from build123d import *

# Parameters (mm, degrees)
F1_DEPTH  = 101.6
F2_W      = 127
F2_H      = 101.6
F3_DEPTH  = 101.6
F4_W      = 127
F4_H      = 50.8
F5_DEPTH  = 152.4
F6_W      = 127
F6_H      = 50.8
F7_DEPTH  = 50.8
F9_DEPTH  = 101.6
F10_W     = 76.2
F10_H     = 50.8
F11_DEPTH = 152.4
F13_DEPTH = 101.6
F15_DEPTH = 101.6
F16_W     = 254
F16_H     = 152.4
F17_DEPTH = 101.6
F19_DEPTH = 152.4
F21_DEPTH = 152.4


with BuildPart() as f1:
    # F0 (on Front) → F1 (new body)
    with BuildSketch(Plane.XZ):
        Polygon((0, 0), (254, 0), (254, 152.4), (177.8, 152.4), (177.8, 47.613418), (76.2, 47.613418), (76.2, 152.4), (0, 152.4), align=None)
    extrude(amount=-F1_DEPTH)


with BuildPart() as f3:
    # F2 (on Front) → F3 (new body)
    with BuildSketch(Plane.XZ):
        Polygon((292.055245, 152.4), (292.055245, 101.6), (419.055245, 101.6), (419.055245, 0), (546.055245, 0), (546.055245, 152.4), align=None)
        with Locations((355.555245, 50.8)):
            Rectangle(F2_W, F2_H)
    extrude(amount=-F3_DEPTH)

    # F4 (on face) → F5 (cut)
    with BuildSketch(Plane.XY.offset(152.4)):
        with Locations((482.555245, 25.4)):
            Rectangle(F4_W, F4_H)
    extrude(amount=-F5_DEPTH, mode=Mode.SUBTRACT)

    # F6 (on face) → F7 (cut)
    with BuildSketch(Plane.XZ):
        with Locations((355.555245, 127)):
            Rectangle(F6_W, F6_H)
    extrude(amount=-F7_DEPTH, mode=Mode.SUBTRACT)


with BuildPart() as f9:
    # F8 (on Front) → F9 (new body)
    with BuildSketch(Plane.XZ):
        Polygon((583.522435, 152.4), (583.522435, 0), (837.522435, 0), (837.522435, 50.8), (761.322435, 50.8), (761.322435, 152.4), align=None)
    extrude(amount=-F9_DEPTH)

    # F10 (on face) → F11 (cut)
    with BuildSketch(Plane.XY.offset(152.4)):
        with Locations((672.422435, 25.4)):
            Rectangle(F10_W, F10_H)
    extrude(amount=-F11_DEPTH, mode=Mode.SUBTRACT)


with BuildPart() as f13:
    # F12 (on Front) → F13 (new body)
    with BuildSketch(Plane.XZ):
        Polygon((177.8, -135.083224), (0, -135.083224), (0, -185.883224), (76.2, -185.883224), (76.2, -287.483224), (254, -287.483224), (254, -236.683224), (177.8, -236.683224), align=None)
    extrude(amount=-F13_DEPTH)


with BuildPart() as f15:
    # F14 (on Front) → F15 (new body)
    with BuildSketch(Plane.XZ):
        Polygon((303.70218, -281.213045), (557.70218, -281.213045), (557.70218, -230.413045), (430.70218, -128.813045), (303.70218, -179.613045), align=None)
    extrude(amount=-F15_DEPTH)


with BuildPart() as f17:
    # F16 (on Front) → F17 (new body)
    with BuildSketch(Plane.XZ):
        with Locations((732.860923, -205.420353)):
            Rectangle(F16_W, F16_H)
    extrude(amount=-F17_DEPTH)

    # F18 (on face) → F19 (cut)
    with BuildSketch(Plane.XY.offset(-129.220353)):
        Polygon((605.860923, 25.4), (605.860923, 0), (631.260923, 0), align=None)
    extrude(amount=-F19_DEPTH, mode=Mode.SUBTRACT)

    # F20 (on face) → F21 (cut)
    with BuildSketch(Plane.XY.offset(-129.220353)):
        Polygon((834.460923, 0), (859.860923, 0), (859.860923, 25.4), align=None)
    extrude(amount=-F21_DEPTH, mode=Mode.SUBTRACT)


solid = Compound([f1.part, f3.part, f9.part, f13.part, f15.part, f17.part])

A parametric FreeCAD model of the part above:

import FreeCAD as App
import Part
import Sketcher
Q = App.Units.Quantity

doc = App.newDocument("Part")
body = doc.addObject("PartDesign::Body", "Body")

# Sketch on XZ plane
sketch1 = body.newObject("Sketcher::SketchObject", "Sketch")
sketch1.AttachmentSupport = (doc.getObject("XZ_Plane"), [""])
sketch1.MapMode = "FlatFace"
sketch1.addGeometry([
    Part.LineSegment(App.Vector(0, 0, 0), App.Vector(254, 0, 0)),  # 0
    Part.LineSegment(App.Vector(254, 0, 0), App.Vector(254, 152.4, 0)),  # 1
    Part.LineSegment(App.Vector(254, 152.4, 0), App.Vector(177.8, 152.4, 0)),  # 2
    Part.LineSegment(App.Vector(177.8, 152.4, 0), App.Vector(177.8, 47.613418, 0)),  # 3
    Part.LineSegment(App.Vector(177.8, 47.613418, 0), App.Vector(76.2, 47.613418, 0)),  # 4
    Part.LineSegment(App.Vector(76.2, 47.613418, 0), App.Vector(76.2, 152.4, 0)),  # 5
    Part.LineSegment(App.Vector(76.2, 152.4, 0), App.Vector(0, 152.4, 0)),  # 6
    Part.LineSegment(App.Vector(0, 152.4, 0), App.Vector(0, 0, 0)),  # 7
], False)
sketch1.addConstraint([
    Sketcher.Constraint("Coincident", 0, 2, 1, 1),
    Sketcher.Constraint("Coincident", 1, 2, 2, 1),
    Sketcher.Constraint("Coincident", 2, 2, 3, 1),
    Sketcher.Constraint("Coincident", 3, 2, 4, 1),
    Sketcher.Constraint("Coincident", 4, 2, 5, 1),
    Sketcher.Constraint("Coincident", 5, 2, 6, 1),
    Sketcher.Constraint("Coincident", 6, 2, 7, 1),
    Sketcher.Constraint("Coincident", 7, 2, 0, 1),
    Sketcher.Constraint("Horizontal", 0),
    Sketcher.Constraint("Vertical", 1),
    Sketcher.Constraint("Horizontal", 2),
    Sketcher.Constraint("Vertical", 3),
    Sketcher.Constraint("Horizontal", 4),
    Sketcher.Constraint("Vertical", 5),
    Sketcher.Constraint("Horizontal", 6),
    Sketcher.Constraint("Vertical", 7),
    Sketcher.Constraint("Coincident", 7, 2, -1, 1),
    Sketcher.Constraint("Horizontal", 2, 2, 5, 2),
    Sketcher.Constraint("Equal", 2, 6),
    Sketcher.Constraint("DistanceX", 0, 1, 0, 2, Q("10 in")),
    Sketcher.Constraint("DistanceX", 2, 2, 2, 1, Q("3 in")),
    Sketcher.Constraint("DistanceY", 1, 1, 1, 2, Q("6 in")),
    Sketcher.Constraint("DistanceY", 3, 2, 3, 1, Q("104.786582 mm")),
])
pad1 = body.newObject("PartDesign::Pad", "Pad")
pad1.Profile = sketch1
pad1.Length = Q("4 in")
pad1.Reversed = True
body2 = doc.addObject("PartDesign::Body", "Body001")

# Sketch on XZ plane
sketch2 = body2.newObject("Sketcher::SketchObject", "Sketch001")
sketch2.AttachmentSupport = (doc.getObject("XZ_Plane001"), [""])
sketch2.MapMode = "FlatFace"
sketch2.addGeometry([
    Part.LineSegment(App.Vector(292.055245, 152.4, 0), App.Vector(292.055245, 0, 0)),
    Part.LineSegment(App.Vector(292.055245, 0, 0), App.Vector(546.055245, 0, 0)),
    Part.LineSegment(App.Vector(546.055245, 0, 0), App.Vector(546.055245, 152.4, 0)),
    Part.LineSegment(App.Vector(546.055245, 152.4, 0), App.Vector(292.055245, 152.4, 0)),
], False)
sketch2.addConstraint([
    Sketcher.Constraint("Coincident", 0, 2, 1, 1),
    Sketcher.Constraint("Coincident", 1, 2, 2, 1),
    Sketcher.Constraint("Coincident", 2, 2, 3, 1),
    Sketcher.Constraint("Coincident", 3, 2, 0, 1),
    Sketcher.Constraint("Vertical", 0),
    Sketcher.Constraint("Horizontal", 1),
    Sketcher.Constraint("Vertical", 2),
    Sketcher.Constraint("Horizontal", 3),
    Sketcher.Constraint("PointOnObject", 0, 2, -1),
    Sketcher.Constraint("DistanceX", 1, 1, 1, 2, Q("10 in")),
    Sketcher.Constraint("DistanceY", 0, 2, 0, 1, Q("6 in")),
    Sketcher.Constraint("DistanceX", -1, 1, 0, 2, Q("292.055245 mm")),
])
pad2 = body2.newObject("PartDesign::Pad", "Pad001")
pad2.Profile = sketch2
pad2.Length = Q("4 in")
pad2.Reversed = True

# Sketch on XY plane
sketch3 = body2.newObject("Sketcher::SketchObject", "Sketch002")
sketch3.AttachmentSupport = (doc.getObject("XY_Plane001"), [""])
sketch3.MapMode = "FlatFace"
sketch3.AttachmentOffset = App.Placement(App.Vector(0, 0, 6 * 25.4), App.Rotation())
sketch3.addGeometry([
    Part.LineSegment(App.Vector(419.055245, 50.8, 0), App.Vector(419.055245, 0, 0)),
    Part.LineSegment(App.Vector(419.055245, 0, 0), App.Vector(546.055245, 0, 0)),
    Part.LineSegment(App.Vector(546.055245, 0, 0), App.Vector(546.055245, 50.8, 0)),
    Part.LineSegment(App.Vector(546.055245, 50.8, 0), App.Vector(419.055245, 50.8, 0)),
], False)
sketch3.addConstraint([
    Sketcher.Constraint("Coincident", 0, 2, 1, 1),
    Sketcher.Constraint("Coincident", 1, 2, 2, 1),
    Sketcher.Constraint("Coincident", 2, 2, 3, 1),
    Sketcher.Constraint("Coincident", 3, 2, 0, 1),
    Sketcher.Constraint("Vertical", 0),
    Sketcher.Constraint("Horizontal", 1),
    Sketcher.Constraint("Vertical", 2),
    Sketcher.Constraint("Horizontal", 3),
    Sketcher.Constraint("PointOnObject", 0, 2, -1),
    Sketcher.Constraint("DistanceX", 1, 1, 1, 2, Q("5 in")),
    Sketcher.Constraint("DistanceY", 0, 2, 0, 1, Q("2 in")),
    Sketcher.Constraint("DistanceX", -1, 1, 0, 2, Q("419.055245 mm")),
])
pocket1 = body2.newObject("PartDesign::Pocket", "Pocket")
pocket1.Profile = sketch3
pocket1.Length = Q("6 in")

# Sketch on XZ plane
sketch4 = body2.newObject("Sketcher::SketchObject", "Sketch003")
sketch4.AttachmentSupport = (doc.getObject("XZ_Plane001"), [""])
sketch4.MapMode = "FlatFace"
sketch4.addGeometry([
    Part.LineSegment(App.Vector(292.055245, 152.4, 0), App.Vector(292.055245, 101.6, 0)),
    Part.LineSegment(App.Vector(292.055245, 101.6, 0), App.Vector(419.055245, 101.6, 0)),
    Part.LineSegment(App.Vector(419.055245, 101.6, 0), App.Vector(419.055245, 152.4, 0)),
    Part.LineSegment(App.Vector(419.055245, 152.4, 0), App.Vector(292.055245, 152.4, 0)),
], False)
sketch4.addConstraint([
    Sketcher.Constraint("Coincident", 0, 2, 1, 1),
    Sketcher.Constraint("Coincident", 1, 2, 2, 1),
    Sketcher.Constraint("Coincident", 2, 2, 3, 1),
    Sketcher.Constraint("Coincident", 3, 2, 0, 1),
    Sketcher.Constraint("Vertical", 0),
    Sketcher.Constraint("Horizontal", 1),
    Sketcher.Constraint("Vertical", 2),
    Sketcher.Constraint("Horizontal", 3),
    Sketcher.Constraint("DistanceX", 1, 1, 1, 2, Q("5 in")),
    Sketcher.Constraint("DistanceY", 0, 2, 0, 1, Q("2 in")),
    Sketcher.Constraint("DistanceY", -1, 1, 0, 2, Q("4 in")),
    Sketcher.Constraint("DistanceX", -1, 1, 0, 2, Q("292.055245 mm")),
])
pocket2 = body2.newObject("PartDesign::Pocket", "Pocket001")
pocket2.Profile = sketch4
pocket2.Length = Q("2 in")
body3 = doc.addObject("PartDesign::Body", "Body002")

# Sketch on XZ plane
sketch5 = body3.newObject("Sketcher::SketchObject", "Sketch004")
sketch5.AttachmentSupport = (doc.getObject("XZ_Plane002"), [""])
sketch5.MapMode = "FlatFace"
sketch5.addGeometry([
    Part.LineSegment(App.Vector(583.522435, 152.4, 0), App.Vector(583.522435, 0, 0)),  # 0
    Part.LineSegment(App.Vector(583.522435, 0, 0), App.Vector(837.522435, 0, 0)),  # 1
    Part.LineSegment(App.Vector(837.522435, 0, 0), App.Vector(837.522435, 50.8, 0)),  # 2
    Part.LineSegment(App.Vector(837.522435, 50.8, 0), App.Vector(761.322435, 50.8, 0)),  # 3
    Part.LineSegment(App.Vector(761.322435, 50.8, 0), App.Vector(761.322435, 152.4, 0)),  # 4
    Part.LineSegment(App.Vector(761.322435, 152.4, 0), App.Vector(583.522435, 152.4, 0)),  # 5
], False)
sketch5.addConstraint([
    Sketcher.Constraint("Coincident", 0, 2, 1, 1),
    Sketcher.Constraint("Coincident", 1, 2, 2, 1),
    Sketcher.Constraint("Coincident", 2, 2, 3, 1),
    Sketcher.Constraint("Coincident", 3, 2, 4, 1),
    Sketcher.Constraint("Coincident", 4, 2, 5, 1),
    Sketcher.Constraint("Coincident", 5, 2, 0, 1),
    Sketcher.Constraint("Vertical", 0),
    Sketcher.Constraint("Horizontal", 1),
    Sketcher.Constraint("Vertical", 2),
    Sketcher.Constraint("Horizontal", 3),
    Sketcher.Constraint("Vertical", 4),
    Sketcher.Constraint("Horizontal", 5),
    Sketcher.Constraint("PointOnObject", 0, 2, -1),
    Sketcher.Constraint("DistanceX", 1, 1, 1, 2, Q("10 in")),
    Sketcher.Constraint("DistanceX", 3, 2, 3, 1, Q("3 in")),
    Sketcher.Constraint("DistanceY", 0, 2, 0, 1, Q("6 in")),
    Sketcher.Constraint("DistanceY", 2, 1, 2, 2, Q("2 in")),
    Sketcher.Constraint("DistanceX", -1, 1, 0, 2, Q("583.522435 mm")),
])
pad3 = body3.newObject("PartDesign::Pad", "Pad002")
pad3.Profile = sketch5
pad3.Length = Q("4 in")
pad3.Reversed = True

# Sketch on XY plane
sketch6 = body3.newObject("Sketcher::SketchObject", "Sketch005")
sketch6.AttachmentSupport = (doc.getObject("XY_Plane002"), [""])
sketch6.MapMode = "FlatFace"
sketch6.AttachmentOffset = App.Placement(App.Vector(0, 0, 6 * 25.4), App.Rotation())
sketch6.addGeometry([
    Part.LineSegment(App.Vector(634.322435, 50.8, 0), App.Vector(634.322435, 0, 0)),
    Part.LineSegment(App.Vector(634.322435, 0, 0), App.Vector(710.522435, 0, 0)),
    Part.LineSegment(App.Vector(710.522435, 0, 0), App.Vector(710.522435, 50.8, 0)),
    Part.LineSegment(App.Vector(710.522435, 50.8, 0), App.Vector(634.322435, 50.8, 0)),
], False)
sketch6.addConstraint([
    Sketcher.Constraint("Coincident", 0, 2, 1, 1),
    Sketcher.Constraint("Coincident", 1, 2, 2, 1),
    Sketcher.Constraint("Coincident", 2, 2, 3, 1),
    Sketcher.Constraint("Coincident", 3, 2, 0, 1),
    Sketcher.Constraint("Vertical", 0),
    Sketcher.Constraint("Horizontal", 1),
    Sketcher.Constraint("Vertical", 2),
    Sketcher.Constraint("Horizontal", 3),
    Sketcher.Constraint("PointOnObject", 0, 2, -1),
    Sketcher.Constraint("DistanceX", 1, 1, 1, 2, Q("3 in")),
    Sketcher.Constraint("DistanceY", 0, 2, 0, 1, Q("2 in")),
    Sketcher.Constraint("DistanceX", -1, 1, 0, 2, Q("634.322435 mm")),
])
pocket3 = body3.newObject("PartDesign::Pocket", "Pocket002")
pocket3.Profile = sketch6
pocket3.Length = Q("6 in")
body4 = doc.addObject("PartDesign::Body", "Body003")

# Sketch on XZ plane
sketch7 = body4.newObject("Sketcher::SketchObject", "Sketch006")
sketch7.AttachmentSupport = (doc.getObject("XZ_Plane003"), [""])
sketch7.MapMode = "FlatFace"
sketch7.addGeometry([
    Part.LineSegment(App.Vector(177.8, -135.083224, 0), App.Vector(0, -135.083224, 0)),  # 0
    Part.LineSegment(App.Vector(0, -135.083224, 0), App.Vector(0, -185.883224, 0)),  # 1
    Part.LineSegment(App.Vector(0, -185.883224, 0), App.Vector(76.2, -185.883224, 0)),  # 2
    Part.LineSegment(App.Vector(76.2, -185.883224, 0), App.Vector(76.2, -287.483224, 0)),  # 3
    Part.LineSegment(App.Vector(76.2, -287.483224, 0), App.Vector(254, -287.483224, 0)),  # 4
    Part.LineSegment(App.Vector(254, -287.483224, 0), App.Vector(254, -236.683224, 0)),  # 5
    Part.LineSegment(App.Vector(254, -236.683224, 0), App.Vector(177.8, -236.683224, 0)),  # 6
    Part.LineSegment(App.Vector(177.8, -236.683224, 0), App.Vector(177.8, -135.083224, 0)),  # 7
], False)
sketch7.addConstraint([
    Sketcher.Constraint("Coincident", 0, 2, 1, 1),
    Sketcher.Constraint("Coincident", 1, 2, 2, 1),
    Sketcher.Constraint("Coincident", 2, 2, 3, 1),
    Sketcher.Constraint("Coincident", 3, 2, 4, 1),
    Sketcher.Constraint("Coincident", 4, 2, 5, 1),
    Sketcher.Constraint("Coincident", 5, 2, 6, 1),
    Sketcher.Constraint("Coincident", 6, 2, 7, 1),
    Sketcher.Constraint("Coincident", 7, 2, 0, 1),
    Sketcher.Constraint("Horizontal", 0),
    Sketcher.Constraint("Vertical", 1),
    Sketcher.Constraint("Horizontal", 2),
    Sketcher.Constraint("Vertical", 3),
    Sketcher.Constraint("Horizontal", 4),
    Sketcher.Constraint("Vertical", 5),
    Sketcher.Constraint("Horizontal", 6),
    Sketcher.Constraint("Vertical", 7),
    Sketcher.Constraint("PointOnObject", 0, 2, -2),
    Sketcher.Constraint("Equal", 0, 4),
    Sketcher.Constraint("Equal", 1, 5),
    Sketcher.Constraint("DistanceX", 0, 2, 0, 1, Q("7 in")),
    Sketcher.Constraint("DistanceX", 2, 1, 2, 2, Q("3 in")),
    Sketcher.Constraint("DistanceY", 1, 2, 1, 1, Q("2 in")),
    Sketcher.Constraint("DistanceY", 3, 2, 3, 1, Q("4 in")),
    Sketcher.Constraint("DistanceY", 0, 2, -1, 1, Q("135.083224 mm")),
])
pad4 = body4.newObject("PartDesign::Pad", "Pad003")
pad4.Profile = sketch7
pad4.Length = Q("4 in")
pad4.Reversed = True
body5 = doc.addObject("PartDesign::Body", "Body004")

# Sketch on XZ plane
sketch8 = body5.newObject("Sketcher::SketchObject", "Sketch007")
sketch8.AttachmentSupport = (doc.getObject("XZ_Plane004"), [""])
sketch8.MapMode = "FlatFace"
sketch8.addGeometry([
    Part.LineSegment(App.Vector(303.70218, -281.213045, 0), App.Vector(557.70218, -281.213045, 0)),  # 0
    Part.LineSegment(App.Vector(557.70218, -281.213045, 0), App.Vector(557.70218, -230.413045, 0)),  # 1
    Part.LineSegment(App.Vector(557.70218, -230.413045, 0), App.Vector(430.70218, -128.813045, 0)),  # 2
    Part.LineSegment(App.Vector(430.70218, -128.813045, 0), App.Vector(303.70218, -179.613045, 0)),  # 3
    Part.LineSegment(App.Vector(303.70218, -179.613045, 0), App.Vector(303.70218, -281.213045, 0)),  # 4
], False)
sketch8.addConstraint([
    Sketcher.Constraint("Coincident", 0, 2, 1, 1),
    Sketcher.Constraint("Coincident", 1, 2, 2, 1),
    Sketcher.Constraint("Coincident", 2, 2, 3, 1),
    Sketcher.Constraint("Coincident", 3, 2, 4, 1),
    Sketcher.Constraint("Coincident", 4, 2, 0, 1),
    Sketcher.Constraint("Horizontal", 0),
    Sketcher.Constraint("Vertical", 1),
    Sketcher.Constraint("Vertical", 4),
    Sketcher.Constraint("DistanceX", 0, 1, 0, 2, Q("10 in")),
    Sketcher.Constraint("DistanceY", 1, 1, 1, 2, Q("2 in")),
    Sketcher.Constraint("DistanceY", 4, 2, 4, 1, Q("4 in")),
    Sketcher.Constraint("DistanceX", 2, 2, 1, 2, Q("5 in")),
    Sketcher.Constraint("DistanceY", 1, 2, 2, 2, Q("4 in")),
    Sketcher.Constraint("DistanceX", -1, 1, 0, 2, Q("557.70218 mm")),
    Sketcher.Constraint("DistanceY", 0, 2, -1, 1, Q("281.213045 mm")),
])
pad5 = body5.newObject("PartDesign::Pad", "Pad004")
pad5.Profile = sketch8
pad5.Length = Q("4 in")
pad5.Reversed = True
body6 = doc.addObject("PartDesign::Body", "Body005")

# Sketch on XZ plane
sketch9 = body6.newObject("Sketcher::SketchObject", "Sketch008")
sketch9.AttachmentSupport = (doc.getObject("XZ_Plane005"), [""])
sketch9.MapMode = "FlatFace"
sketch9.addGeometry([
    Part.LineSegment(App.Vector(605.860923, -129.220353, 0), App.Vector(605.860923, -281.620353, 0)),
    Part.LineSegment(App.Vector(605.860923, -281.620353, 0), App.Vector(859.860923, -281.620353, 0)),
    Part.LineSegment(App.Vector(859.860923, -281.620353, 0), App.Vector(859.860923, -129.220353, 0)),
    Part.LineSegment(App.Vector(859.860923, -129.220353, 0), App.Vector(605.860923, -129.220353, 0)),
], False)
sketch9.addConstraint([
    Sketcher.Constraint("Coincident", 0, 2, 1, 1),
    Sketcher.Constraint("Coincident", 1, 2, 2, 1),
    Sketcher.Constraint("Coincident", 2, 2, 3, 1),
    Sketcher.Constraint("Coincident", 3, 2, 0, 1),
    Sketcher.Constraint("Vertical", 0),
    Sketcher.Constraint("Horizontal", 1),
    Sketcher.Constraint("Vertical", 2),
    Sketcher.Constraint("Horizontal", 3),
    Sketcher.Constraint("DistanceX", 1, 1, 1, 2, Q("10 in")),
    Sketcher.Constraint("DistanceY", 0, 2, 0, 1, Q("6 in")),
    Sketcher.Constraint("DistanceX", -1, 1, 0, 2, Q("605.860923 mm")),
    Sketcher.Constraint("DistanceY", 0, 2, -1, 1, Q("281.620353 mm")),
])
pad6 = body6.newObject("PartDesign::Pad", "Pad005")
pad6.Profile = sketch9
pad6.Length = Q("4 in")
pad6.Reversed = True

# Sketch on XY plane
sketch10 = body6.newObject("Sketcher::SketchObject", "Sketch009")
sketch10.AttachmentSupport = (doc.getObject("XY_Plane005"), [""])
sketch10.MapMode = "FlatFace"
sketch10.AttachmentOffset = App.Placement(App.Vector(0, 0, -129.220353), App.Rotation())
sketch10.addGeometry([
    Part.LineSegment(App.Vector(605.860923, 25.4, 0), App.Vector(605.860923, 0, 0)),
    Part.LineSegment(App.Vector(605.860923, 0, 0), App.Vector(631.260923, 0, 0)),
    Part.LineSegment(App.Vector(631.260923, 0, 0), App.Vector(605.860923, 25.4, 0)),
], False)
sketch10.addConstraint([
    Sketcher.Constraint("Coincident", 0, 2, 1, 1),
    Sketcher.Constraint("Coincident", 1, 2, 2, 1),
    Sketcher.Constraint("Coincident", 2, 2, 0, 1),
    Sketcher.Constraint("Vertical", 0),
    Sketcher.Constraint("Horizontal", 1),
    Sketcher.Constraint("PointOnObject", 0, 2, -1),
    Sketcher.Constraint("Equal", 1, 0),
    Sketcher.Constraint("DistanceX", 1, 1, 1, 2, Q("1 in")),
    Sketcher.Constraint("DistanceX", -1, 1, 0, 2, Q("605.860923 mm")),
])
pocket4 = body6.newObject("PartDesign::Pocket", "Pocket003")
pocket4.Profile = sketch10
pocket4.Length = Q("6 in")

# Sketch on XY plane
sketch11 = body6.newObject("Sketcher::SketchObject", "Sketch010")
sketch11.AttachmentSupport = (doc.getObject("XY_Plane005"), [""])
sketch11.MapMode = "FlatFace"
sketch11.AttachmentOffset = App.Placement(App.Vector(0, 0, -129.220353), App.Rotation())
sketch11.addGeometry([
    Part.LineSegment(App.Vector(834.460923, 0, 0), App.Vector(859.860923, 0, 0)),
    Part.LineSegment(App.Vector(859.860923, 0, 0), App.Vector(859.860923, 25.4, 0)),
    Part.LineSegment(App.Vector(859.860923, 25.4, 0), App.Vector(834.460923, 0, 0)),
], False)
sketch11.addConstraint([
    Sketcher.Constraint("Coincident", 0, 2, 1, 1),
    Sketcher.Constraint("Coincident", 1, 2, 2, 1),
    Sketcher.Constraint("Coincident", 2, 2, 0, 1),
    Sketcher.Constraint("Horizontal", 0),
    Sketcher.Constraint("Vertical", 1),
    Sketcher.Constraint("PointOnObject", 0, 2, -1),
    Sketcher.Constraint("Equal", 0, 1),
    Sketcher.Constraint("DistanceX", 0, 1, 0, 2, Q("1 in")),
    Sketcher.Constraint("DistanceX", -1, 1, 0, 2, Q("859.860923 mm")),
])
pocket5 = body6.newObject("PartDesign::Pocket", "Pocket004")
pocket5.Profile = sketch11
pocket5.Length = Q("6 in")

doc.recompute()
